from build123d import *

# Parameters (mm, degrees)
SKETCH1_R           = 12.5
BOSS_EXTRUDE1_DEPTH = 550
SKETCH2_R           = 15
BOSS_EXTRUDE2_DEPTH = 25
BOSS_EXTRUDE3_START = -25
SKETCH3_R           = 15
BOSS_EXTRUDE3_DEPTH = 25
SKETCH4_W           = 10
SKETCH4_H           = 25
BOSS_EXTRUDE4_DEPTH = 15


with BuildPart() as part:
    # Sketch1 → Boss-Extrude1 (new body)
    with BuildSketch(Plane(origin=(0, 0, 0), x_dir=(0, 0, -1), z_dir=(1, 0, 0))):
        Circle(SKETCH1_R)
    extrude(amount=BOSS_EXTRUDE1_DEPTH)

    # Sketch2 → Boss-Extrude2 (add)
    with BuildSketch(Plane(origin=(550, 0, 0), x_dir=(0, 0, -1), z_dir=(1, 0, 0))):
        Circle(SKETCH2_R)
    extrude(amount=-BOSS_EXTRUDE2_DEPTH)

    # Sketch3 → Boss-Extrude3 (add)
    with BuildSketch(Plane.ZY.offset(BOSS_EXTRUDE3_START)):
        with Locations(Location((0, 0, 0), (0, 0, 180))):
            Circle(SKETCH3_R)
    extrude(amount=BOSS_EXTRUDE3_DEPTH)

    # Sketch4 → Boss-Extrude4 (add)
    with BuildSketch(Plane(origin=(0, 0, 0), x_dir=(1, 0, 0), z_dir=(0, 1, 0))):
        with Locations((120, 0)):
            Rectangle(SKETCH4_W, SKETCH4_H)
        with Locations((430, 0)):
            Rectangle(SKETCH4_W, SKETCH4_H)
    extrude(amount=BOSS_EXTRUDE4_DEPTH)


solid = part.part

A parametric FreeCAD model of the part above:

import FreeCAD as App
import Part
import Sketcher

doc = App.newDocument("Part")
body = doc.addObject("PartDesign::Body", "Body")

# Sketch on YZ plane
sketch1 = body.newObject("Sketcher::SketchObject", "Sketch")
sketch1.AttachmentSupport = (doc.getObject("YZ_Plane"), [""])
sketch1.MapMode = "FlatFace"
sketch1.addGeometry(Part.Circle(App.Vector(0, 0, 0), App.Vector(0, 0, 1), 12), False)
sketch1.addConstraint([
    Sketcher.Constraint("Coincident", 0, 3, -1, 1),
    Sketcher.Constraint("Diameter", 0, 25.0),
])
pad1 = body.newObject("PartDesign::Pad", "Pad")
pad1.Profile = sketch1
pad1.Length = 550

# Sketch on YZ plane
sketch2 = body.newObject("Sketcher::SketchObject", "Sketch001")
sketch2.AttachmentSupport = (doc.getObject("YZ_Plane"), [""])
sketch2.MapMode = "FlatFace"
sketch2.AttachmentOffset = App.Placement(App.Vector(0, 0, 550), App.Rotation())
sketch2.addGeometry(Part.Circle(App.Vector(0, 0, 0), App.Vector(0, 0, 1), 15), False)
sketch2.addConstraint([
    Sketcher.Constraint("Coincident", 0, 3, -1, 1),
    Sketcher.Constraint("Diameter", 0, 30.0),
])
pad2 = body.newObject("PartDesign::Pad", "Pad001")
pad2.Profile = sketch2
pad2.Length = 25
pad2.Reversed = True

# Sketch on YZ plane
sketch3 = body.newObject("Sketcher::SketchObject", "Sketch002")
sketch3.AttachmentSupport = (doc.getObject("YZ_Plane"), [""])
sketch3.MapMode = "FlatFace"
sketch3.AttachmentOffset = App.Placement(App.Vector(0, 0, 25), App.Rotation())
sketch3.addGeometry(Part.Circle(App.Vector(0, 0, 0), App.Vector(0, 0, 1), 15), False)
sketch3.addConstraint([
    Sketcher.Constraint("Coincident", 0, 3, -1, 1),
    Sketcher.Constraint("Diameter", 0, 30.0),
])
pad3 = body.newObject("PartDesign::Pad", "Pad002")
pad3.Profile = sketch3
pad3.Length = 25
pad3.Reversed = True

# Sketch on XZ plane
sketch4 = body.newObject("Sketcher::SketchObject", "Sketch003")
sketch4.AttachmentSupport = (doc.getObject("XZ_Plane"), [""])
sketch4.MapMode = "FlatFace"
sketch4.addGeometry([
    Part.LineSegment(App.Vector(115, -12, 0), App.Vector(115, 12, 0)),  # 0
    Part.LineSegment(App.Vector(115, 12, 0), App.Vector(125, 12, 0)),  # 1
    Part.LineSegment(App.Vector(125, 12, 0), App.Vector(125, -12, 0)),  # 2
    Part.LineSegment(App.Vector(125, -12, 0), App.Vector(115, -12, 0)),  # 3
    Part.LineSegment(App.Vector(425, -12, 0), App.Vector(425, 12, 0)),  # 4
    Part.LineSegment(App.Vector(425, 12, 0), App.Vector(435, 12, 0)),  # 5
    Part.LineSegment(App.Vector(435, 12, 0), App.Vector(435, -12, 0)),  # 6
    Part.LineSegment(App.Vector(435, -12, 0), App.Vector(425, -12, 0)),  # 7
], False)
sketch4.addConstraint([
    Sketcher.Constraint("Coincident", 0, 2, 1, 1),
    Sketcher.Constraint("Coincident", 1, 2, 2, 1),
    Sketcher.Constraint("Coincident", 2, 2, 3, 1),
    Sketcher.Constraint("Coincident", 3, 2, 0, 1),
    Sketcher.Constraint("Coincident", 4, 2, 5, 1),
    Sketcher.Constraint("Coincident", 5, 2, 6, 1),
    Sketcher.Constraint("Coincident", 6, 2, 7, 1),
    Sketcher.Constraint("Coincident", 7, 2, 4, 1),
    Sketcher.Constraint("Vertical", 0),
    Sketcher.Constraint("Horizontal", 1),
    Sketcher.Constraint("Vertical", 2),
    Sketcher.Constraint("Horizontal", 3),
    Sketcher.Constraint("Vertical", 4),
    Sketcher.Constraint("Horizontal", 5),
    Sketcher.Constraint("Vertical", 6),
    Sketcher.Constraint("Horizontal", 7),
    Sketcher.Constraint("Horizontal", 1, 2, 4, 2),
    Sketcher.Constraint("Horizontal", 3, 2, 6, 2),
    Sketcher.Constraint("Equal", 3, 5),
    Sketcher.Constraint("DistanceX", 1, 1, 1, 2, 10.0),
    Sketcher.Constraint("DistanceY", 0, 1, 0, 2, 25.0),
    Sketcher.Constraint("DistanceX", -1, 1, 0, 2, 115.0),
    Sketcher.Constraint("DistanceX", -1, 1, 4, 2, 425.0),
    Sketcher.Constraint("DistanceY", -1, 1, 0, 2, 12.5),
])
pad4 = body.newObject("PartDesign::Pad", "Pad003")
pad4.Profile = sketch4
pad4.Length = 15
pad4.Reversed = True

doc.recompute()
